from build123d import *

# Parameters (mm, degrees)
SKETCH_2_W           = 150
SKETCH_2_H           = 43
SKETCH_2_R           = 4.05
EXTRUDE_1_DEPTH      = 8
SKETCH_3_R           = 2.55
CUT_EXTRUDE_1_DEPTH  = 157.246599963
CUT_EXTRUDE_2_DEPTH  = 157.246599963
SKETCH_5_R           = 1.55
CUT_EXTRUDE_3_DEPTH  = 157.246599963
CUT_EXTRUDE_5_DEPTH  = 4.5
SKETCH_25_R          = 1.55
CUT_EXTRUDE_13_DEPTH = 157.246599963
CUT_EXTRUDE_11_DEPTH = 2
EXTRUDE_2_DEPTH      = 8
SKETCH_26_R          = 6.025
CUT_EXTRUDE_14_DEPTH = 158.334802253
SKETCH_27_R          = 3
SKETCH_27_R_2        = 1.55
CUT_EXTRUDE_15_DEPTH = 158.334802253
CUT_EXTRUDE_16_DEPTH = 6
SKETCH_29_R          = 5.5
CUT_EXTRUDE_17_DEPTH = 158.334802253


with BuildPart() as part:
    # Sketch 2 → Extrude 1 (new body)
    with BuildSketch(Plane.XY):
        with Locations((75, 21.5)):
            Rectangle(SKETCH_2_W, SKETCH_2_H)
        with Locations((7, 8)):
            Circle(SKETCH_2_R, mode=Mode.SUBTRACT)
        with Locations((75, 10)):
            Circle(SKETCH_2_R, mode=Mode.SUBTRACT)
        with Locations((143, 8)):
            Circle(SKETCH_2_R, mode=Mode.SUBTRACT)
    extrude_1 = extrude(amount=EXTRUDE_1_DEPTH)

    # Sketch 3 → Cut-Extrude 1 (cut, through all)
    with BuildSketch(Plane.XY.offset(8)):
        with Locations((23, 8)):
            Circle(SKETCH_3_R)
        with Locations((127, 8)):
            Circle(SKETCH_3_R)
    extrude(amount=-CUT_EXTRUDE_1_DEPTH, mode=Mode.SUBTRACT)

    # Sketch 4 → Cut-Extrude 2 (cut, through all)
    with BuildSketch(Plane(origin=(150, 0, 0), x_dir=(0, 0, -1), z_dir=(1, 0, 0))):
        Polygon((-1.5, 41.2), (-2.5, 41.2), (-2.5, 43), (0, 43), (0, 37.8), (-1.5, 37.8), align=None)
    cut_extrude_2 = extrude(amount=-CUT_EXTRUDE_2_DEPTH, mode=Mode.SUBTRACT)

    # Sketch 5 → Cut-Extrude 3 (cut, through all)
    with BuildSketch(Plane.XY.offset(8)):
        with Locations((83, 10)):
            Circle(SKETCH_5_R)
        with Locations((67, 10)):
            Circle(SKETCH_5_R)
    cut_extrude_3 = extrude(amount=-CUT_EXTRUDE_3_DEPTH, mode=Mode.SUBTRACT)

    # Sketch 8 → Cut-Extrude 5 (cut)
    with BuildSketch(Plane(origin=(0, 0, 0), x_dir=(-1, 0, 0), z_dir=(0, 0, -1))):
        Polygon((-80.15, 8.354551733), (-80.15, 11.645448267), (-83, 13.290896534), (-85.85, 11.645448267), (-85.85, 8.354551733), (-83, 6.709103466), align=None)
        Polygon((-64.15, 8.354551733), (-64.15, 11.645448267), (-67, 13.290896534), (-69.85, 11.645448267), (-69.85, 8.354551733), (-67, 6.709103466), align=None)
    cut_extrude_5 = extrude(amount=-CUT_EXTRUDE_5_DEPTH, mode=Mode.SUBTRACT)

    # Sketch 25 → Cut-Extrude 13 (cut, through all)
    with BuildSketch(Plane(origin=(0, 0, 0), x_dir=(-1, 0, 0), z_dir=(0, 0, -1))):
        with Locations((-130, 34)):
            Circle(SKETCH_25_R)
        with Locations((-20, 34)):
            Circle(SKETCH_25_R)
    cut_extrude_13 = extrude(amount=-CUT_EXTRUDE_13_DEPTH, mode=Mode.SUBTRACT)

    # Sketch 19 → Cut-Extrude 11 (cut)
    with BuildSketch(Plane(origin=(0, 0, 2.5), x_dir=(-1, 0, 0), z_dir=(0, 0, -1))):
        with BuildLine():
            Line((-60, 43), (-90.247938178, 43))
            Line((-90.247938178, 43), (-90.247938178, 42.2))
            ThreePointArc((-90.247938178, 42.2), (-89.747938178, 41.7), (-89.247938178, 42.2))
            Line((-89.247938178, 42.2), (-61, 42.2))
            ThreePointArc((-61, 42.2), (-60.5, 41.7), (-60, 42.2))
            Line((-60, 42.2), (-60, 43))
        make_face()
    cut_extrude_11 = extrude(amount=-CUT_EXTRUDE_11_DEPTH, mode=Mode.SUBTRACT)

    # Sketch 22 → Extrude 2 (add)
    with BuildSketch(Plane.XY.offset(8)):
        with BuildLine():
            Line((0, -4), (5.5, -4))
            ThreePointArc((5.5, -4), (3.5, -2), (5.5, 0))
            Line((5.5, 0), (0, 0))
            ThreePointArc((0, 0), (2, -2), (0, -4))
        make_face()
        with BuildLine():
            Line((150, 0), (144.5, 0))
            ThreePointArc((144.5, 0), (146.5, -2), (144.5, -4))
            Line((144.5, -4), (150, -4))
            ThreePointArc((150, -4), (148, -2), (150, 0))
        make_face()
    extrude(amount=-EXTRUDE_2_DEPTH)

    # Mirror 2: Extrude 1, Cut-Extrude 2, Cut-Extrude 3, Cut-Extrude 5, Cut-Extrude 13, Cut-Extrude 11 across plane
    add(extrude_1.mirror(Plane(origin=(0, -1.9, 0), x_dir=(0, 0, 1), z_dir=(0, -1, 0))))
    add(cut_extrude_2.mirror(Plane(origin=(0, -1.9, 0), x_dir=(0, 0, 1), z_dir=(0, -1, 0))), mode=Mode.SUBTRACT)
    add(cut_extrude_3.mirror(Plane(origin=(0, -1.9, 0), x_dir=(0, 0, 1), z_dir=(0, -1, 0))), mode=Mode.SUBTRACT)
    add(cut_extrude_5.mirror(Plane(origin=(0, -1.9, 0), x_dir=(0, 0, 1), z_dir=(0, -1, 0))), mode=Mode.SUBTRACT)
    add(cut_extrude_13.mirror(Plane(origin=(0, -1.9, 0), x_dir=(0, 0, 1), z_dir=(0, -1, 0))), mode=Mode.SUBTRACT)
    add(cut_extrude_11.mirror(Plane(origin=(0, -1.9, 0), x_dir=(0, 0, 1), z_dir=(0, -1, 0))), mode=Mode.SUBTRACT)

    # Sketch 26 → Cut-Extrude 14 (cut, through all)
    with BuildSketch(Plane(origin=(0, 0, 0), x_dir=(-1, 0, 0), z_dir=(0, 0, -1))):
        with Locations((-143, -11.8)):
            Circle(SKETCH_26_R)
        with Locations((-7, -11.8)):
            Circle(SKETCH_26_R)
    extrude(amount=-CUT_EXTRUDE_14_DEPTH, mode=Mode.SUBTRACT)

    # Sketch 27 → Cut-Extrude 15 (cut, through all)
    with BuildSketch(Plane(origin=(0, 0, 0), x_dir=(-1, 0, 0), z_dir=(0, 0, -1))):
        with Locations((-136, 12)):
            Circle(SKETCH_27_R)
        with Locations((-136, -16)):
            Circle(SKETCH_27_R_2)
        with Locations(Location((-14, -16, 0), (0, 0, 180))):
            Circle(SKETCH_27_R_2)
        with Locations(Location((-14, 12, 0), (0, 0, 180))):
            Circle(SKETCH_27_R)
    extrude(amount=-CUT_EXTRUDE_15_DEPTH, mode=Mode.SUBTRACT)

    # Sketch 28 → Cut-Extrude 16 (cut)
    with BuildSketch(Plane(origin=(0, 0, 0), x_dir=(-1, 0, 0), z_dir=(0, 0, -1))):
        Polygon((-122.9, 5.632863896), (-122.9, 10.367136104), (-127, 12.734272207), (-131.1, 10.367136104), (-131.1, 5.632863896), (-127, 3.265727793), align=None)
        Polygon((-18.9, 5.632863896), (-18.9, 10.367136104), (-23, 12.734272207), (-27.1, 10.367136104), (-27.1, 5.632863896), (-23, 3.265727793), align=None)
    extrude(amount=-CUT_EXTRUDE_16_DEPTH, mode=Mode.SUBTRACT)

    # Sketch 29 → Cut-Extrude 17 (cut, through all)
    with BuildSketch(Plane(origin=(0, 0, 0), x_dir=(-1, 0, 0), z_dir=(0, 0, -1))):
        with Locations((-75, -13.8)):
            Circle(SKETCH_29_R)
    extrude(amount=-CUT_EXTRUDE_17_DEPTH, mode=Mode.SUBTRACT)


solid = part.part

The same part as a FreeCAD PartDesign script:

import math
import FreeCAD as App
import Part
import Sketcher
Q = App.Units.Quantity


def add_polygon(sketch, points):
    """Adds a closed chain of lines whose ends are joined by coincident constraints."""
    first, n = sketch.GeometryCount, len(points)
    for a, b in zip(points, points[1:] + points[:1]):
        sketch.addGeometry(Part.LineSegment(App.Vector(*a, 0), App.Vector(*b, 0)), False)
    for i in range(n):
        sketch.addConstraint(Sketcher.Constraint("Coincident", first + i, 2, first + (i + 1) % n, 1))

doc = App.newDocument("Part")
body = doc.addObject("PartDesign::Body", "Body")

# Sketch on XY plane
sketch1 = doc.addObject("Sketcher::SketchObject", "Sketch")
body.addObject(sketch1)
sketch1.AttachmentSupport = (doc.XY_Plane, [""])
sketch1.MapMode = "FlatFace"
add_polygon(sketch1, [(0, 43), (0, 0), (150, 0), (150, 43)])  # lines 0-3
sketch1.addGeometry(Part.Circle(App.Vector(7, 8, 0), App.Vector(0, 0, 1), 4), False)  # 4
sketch1.addGeometry(Part.Circle(App.Vector(143, 8, 0), App.Vector(0, 0, 1), 4), False)  # 5
sketch1.addGeometry(Part.Circle(App.Vector(75, 10, 0), App.Vector(0, 0, 1), 4), False)  # 6
sketch1.addConstraint(Sketcher.Constraint("Vertical", 0))
sketch1.addConstraint(Sketcher.Constraint("Horizontal", 1))
sketch1.addConstraint(Sketcher.Constraint("Vertical", 2))
sketch1.addConstraint(Sketcher.Constraint("Horizontal", 3))
sketch1.addConstraint(Sketcher.Constraint("Coincident", 0, 2, -1, 1))
sketch1.addConstraint(Sketcher.Constraint("Equal", 4, 5))
sketch1.addConstraint(Sketcher.Constraint("Equal", 5, 6))
sketch1.addConstraint(Sketcher.Constraint("Horizontal", 4, 3, 5, 3))
sketch1.addConstraint(Sketcher.Constraint("Diameter", 4, Q("8.1 mm")))
sketch1.addConstraint(Sketcher.Constraint("DistanceX", 1, 1, 1, 2, Q("150 mm")))
sketch1.addConstraint(Sketcher.Constraint("DistanceY", 0, 2, 0, 1, Q("43 mm")))
sketch1.addConstraint(Sketcher.Constraint("DistanceX", -1, 1, 4, 3, Q("7 mm")))
sketch1.addConstraint(Sketcher.Constraint("DistanceY", -1, 1, 4, 3, Q("8 mm")))
sketch1.addConstraint(Sketcher.Constraint("DistanceX", -1, 1, 5, 3, Q("143 mm")))
sketch1.addConstraint(Sketcher.Constraint("DistanceX", -1, 1, 6, 3, Q("75 mm")))
sketch1.addConstraint(Sketcher.Constraint("DistanceY", -1, 1, 6, 3, Q("10 mm")))
pad1 = doc.addObject("PartDesign::Pad", "Pad")
body.addObject(pad1)
pad1.Profile = sketch1
pad1.Length = 8

# Sketch on XY plane
sketch2 = doc.addObject("Sketcher::SketchObject", "Sketch001")
body.addObject(sketch2)
sketch2.AttachmentSupport = (doc.XY_Plane, [""])
sketch2.MapMode = "FlatFace"
sketch2.AttachmentOffset = App.Placement(App.Vector(0, 0, 8), App.Rotation())
sketch2.addGeometry(Part.Circle(App.Vector(23, 8, 0), App.Vector(0, 0, 1), 2.5), False)
sketch2.addGeometry(Part.Circle(App.Vector(127, 8, 0), App.Vector(0, 0, 1), 2.5), False)
sketch2.addConstraint(Sketcher.Constraint("Equal", 0, 1))
sketch2.addConstraint(Sketcher.Constraint("Horizontal", 0, 3, 1, 3))
sketch2.addConstraint(Sketcher.Constraint("Diameter", 0, Q("5.1 mm")))
sketch2.addConstraint(Sketcher.Constraint("DistanceX", -1, 1, 0, 3, Q("23 mm")))
sketch2.addConstraint(Sketcher.Constraint("DistanceY", -1, 1, 0, 3, Q("8 mm")))
sketch2.addConstraint(Sketcher.Constraint("DistanceX", -1, 1, 1, 3, Q("127 mm")))
pocket1 = doc.addObject("PartDesign::Pocket", "Pocket")
body.addObject(pocket1)
pocket1.Profile = sketch2
pocket1.Type = "ThroughAll"

# Sketch on YZ plane
sketch3 = doc.addObject("Sketcher::SketchObject", "Sketch002")
body.addObject(sketch3)
sketch3.AttachmentSupport = (doc.YZ_Plane, [""])
sketch3.MapMode = "FlatFace"
sketch3.AttachmentOffset = App.Placement(App.Vector(0, 0, 150), App.Rotation())
add_polygon(sketch3, [(41.2, 2.5), (41.2, 1.5), (37.8, 1.5), (37.8, 0), (43, 0), (43, 2.5)])  # lines 0-5
sketch3.addConstraint(Sketcher.Constraint("Vertical", 0))
sketch3.addConstraint(Sketcher.Constraint("Horizontal", 1))
sketch3.addConstraint(Sketcher.Constraint("Vertical", 2))
sketch3.addConstraint(Sketcher.Constraint("Horizontal", 3))
sketch3.addConstraint(Sketcher.Constraint("Vertical", 4))
sketch3.addConstraint(Sketcher.Constraint("Horizontal", 5))
sketch3.addConstraint(Sketcher.Constraint("PointOnObject", 2, 2, -1))
sketch3.addConstraint(Sketcher.Constraint("DistanceY", 0, 2, 0, 1, Q("1 mm")))
sketch3.addConstraint(Sketcher.Constraint("DistanceX", 1, 2, 1, 1, Q("3.4 mm")))
sketch3.addConstraint(Sketcher.Constraint("DistanceX", 3, 1, 3, 2, Q("5.2 mm")))
sketch3.addConstraint(Sketcher.Constraint("DistanceY", 2, 2, 2, 1, Q("1.5 mm")))
sketch3.addConstraint(Sketcher.Constraint("DistanceX", -1, 1, 3, 2, Q("43 mm")))
pocket2 = doc.addObject("PartDesign::Pocket", "Pocket001")
body.addObject(pocket2)
pocket2.Profile = sketch3
pocket2.Type = "ThroughAll"

# Sketch on XY plane
sketch4 = doc.addObject("Sketcher::SketchObject", "Sketch003")
body.addObject(sketch4)
sketch4.AttachmentSupport = (doc.XY_Plane, [""])
sketch4.MapMode = "FlatFace"
sketch4.AttachmentOffset = App.Placement(App.Vector(0, 0, 8), App.Rotation())
sketch4.addGeometry(Part.Circle(App.Vector(83, 10, 0), App.Vector(0, 0, 1), 1.6), False)
sketch4.addGeometry(Part.Circle(App.Vector(67, 10, 0), App.Vector(0, 0, 1), 1.6), False)
sketch4.addConstraint(Sketcher.Constraint("Equal", 0, 1))
sketch4.addConstraint(Sketcher.Constraint("Horizontal", 0, 3, 1, 3))
sketch4.addConstraint(Sketcher.Constraint("Diameter", 0, Q("3.1 mm")))
sketch4.addConstraint(Sketcher.Constraint("DistanceX", -1, 1, 0, 3, Q("83 mm")))
sketch4.addConstraint(Sketcher.Constraint("DistanceY", -1, 1, 0, 3, Q("10 mm")))
sketch4.addConstraint(Sketcher.Constraint("DistanceX", -1, 1, 1, 3, Q("67 mm")))
pocket3 = doc.addObject("PartDesign::Pocket", "Pocket002")
body.addObject(pocket3)
pocket3.Profile = sketch4
pocket3.Type = "ThroughAll"

# Sketch on XY plane
sketch5 = doc.addObject("Sketcher::SketchObject", "Sketch004")
body.addObject(sketch5)
sketch5.AttachmentSupport = (doc.XY_Plane, [""])
sketch5.MapMode = "FlatFace"
add_polygon(sketch5, [(80.2, 8.4), (80.2, 11.6), (83, 13.3), (85.8, 11.6), (85.8, 8.4), (83, 6.7)])  # lines 0-5
add_polygon(sketch5, [(64.2, 8.4), (64.2, 11.6), (67, 13.3), (69.8, 11.6), (69.8, 8.4), (67, 6.7)])  # lines 6-11
sketch5.addConstraint(Sketcher.Constraint("Vertical", 0))
sketch5.addConstraint(Sketcher.Constraint("Vertical", 3))
sketch5.addConstraint(Sketcher.Constraint("Vertical", 6))
sketch5.addConstraint(Sketcher.Constraint("Vertical", 9))
sketch5.addConstraint(Sketcher.Constraint("Parallel", 1, 4))
sketch5.addConstraint(Sketcher.Constraint("Parallel", 2, 5))
sketch5.addConstraint(Sketcher.Constraint("Parallel", 4, 7))
sketch5.addConstraint(Sketcher.Constraint("Parallel", 5, 8))
sketch5.addConstraint(Sketcher.Constraint("Parallel", 7, 10))
sketch5.addConstraint(Sketcher.Constraint("Parallel", 8, 11))
sketch5.addConstraint(Sketcher.Constraint("Horizontal", 0, 2, 2, 2))
sketch5.addConstraint(Sketcher.Constraint("Horizontal", 3, 2, 5, 2))
sketch5.addConstraint(Sketcher.Constraint("Horizontal", 2, 2, 6, 2))
sketch5.addConstraint(Sketcher.Constraint("Horizontal", 1, 2, 7, 2))
sketch5.addConstraint(Sketcher.Constraint("Horizontal", 6, 2, 8, 2))
sketch5.addConstraint(Sketcher.Constraint("Horizontal", 5, 2, 9, 2))
sketch5.addConstraint(Sketcher.Constraint("Horizontal", 4, 2, 10, 2))
sketch5.addConstraint(Sketcher.Constraint("Vertical", 1, 2, 4, 2))
sketch5.addConstraint(Sketcher.Constraint("Angle", 1, Q("30 deg")))
sketch5.addConstraint(Sketcher.Constraint("DistanceX", -1, 1, 1, 2, Q("83 mm")))
sketch5.addConstraint(Sketcher.Constraint("DistanceX", -1, 1, 7, 2, Q("67 mm")))
sketch5.addConstraint(Sketcher.Constraint("DistanceX", 0, 2, 2, 2, Q("5.7 mm")))
sketch5.addConstraint(Sketcher.Constraint("DistanceY", 0, 1, 0, 2, Q("3.290897 mm")))
sketch5.addConstraint(Sketcher.Constraint("DistanceY", -1, 1, 0, 2, Q("11.645448 mm")))
pocket4 = doc.addObject("PartDesign::Pocket", "Pocket003")
body.addObject(pocket4)
pocket4.Profile = sketch5
pocket4.Length = 4.5
pocket4.Reversed = True

# Sketch on XY plane
sketch6 = doc.addObject("Sketcher::SketchObject", "Sketch005")
body.addObject(sketch6)
sketch6.AttachmentSupport = (doc.XY_Plane, [""])
sketch6.MapMode = "FlatFace"
sketch6.addGeometry(Part.Circle(App.Vector(130, 34, 0), App.Vector(0, 0, 1), 1.6), False)
sketch6.addGeometry(Part.Circle(App.Vector(20, 34, 0), App.Vector(0, 0, 1), 1.6), False)
sketch6.addConstraint(Sketcher.Constraint("Equal", 0, 1))
sketch6.addConstraint(Sketcher.Constraint("Horizontal", 0, 3, 1, 3))
sketch6.addConstraint(Sketcher.Constraint("Diameter", 0, Q("3.1 mm")))
sketch6.addConstraint(Sketcher.Constraint("DistanceX", -1, 1, 0, 3, Q("130 mm")))
sketch6.addConstraint(Sketcher.Constraint("DistanceY", -1, 1, 0, 3, Q("34 mm")))
sketch6.addConstraint(Sketcher.Constraint("DistanceX", -1, 1, 1, 3, Q("20 mm")))
pocket5 = doc.addObject("PartDesign::Pocket", "Pocket004")
body.addObject(pocket5)
pocket5.Profile = sketch6
pocket5.Type = "ThroughAll"
pocket5.Reversed = True

# Sketch on XY plane
sketch7 = doc.addObject("Sketcher::SketchObject", "Sketch006")
body.addObject(sketch7)
sketch7.AttachmentSupport = (doc.XY_Plane, [""])
sketch7.MapMode = "FlatFace"
sketch7.AttachmentOffset = App.Placement(App.Vector(0, 0, 2.5), App.Rotation())
sketch7.addGeometry(Part.LineSegment(App.Vector(60, 43, 0), App.Vector(90.2, 43, 0)), False)
sketch7.addGeometry(Part.LineSegment(App.Vector(90.2, 43, 0), App.Vector(90.2, 42.2, 0)), False)
sketch7.addGeometry(Part.ArcOfCircle(Part.Circle(App.Vector(89.7, 42.2, 0), App.Vector(0, 0, 1), 0.5), math.radians(180), math.radians(360)), False)
sketch7.addGeometry(Part.LineSegment(App.Vector(89.2, 42.2, 0), App.Vector(61, 42.2, 0)), False)
sketch7.addGeometry(Part.ArcOfCircle(Part.Circle(App.Vector(60.5, 42.2, 0), App.Vector(0, 0, 1), 0.5), math.radians(180), math.radians(360)), False)
sketch7.addGeometry(Part.LineSegment(App.Vector(60, 42.2, 0), App.Vector(60, 43, 0)), False)
sketch7.addConstraint(Sketcher.Constraint("Coincident", 0, 2, 1, 1))
sketch7.addConstraint(Sketcher.Constraint("Tangent", 1, 2, 2, 2))
sketch7.addConstraint(Sketcher.Constraint("Coincident", 2, 1, 3, 1))
sketch7.addConstraint(Sketcher.Constraint("Coincident", 3, 2, 4, 2))
sketch7.addConstraint(Sketcher.Constraint("Tangent", 4, 1, 5, 1))
sketch7.addConstraint(Sketcher.Constraint("Coincident", 5, 2, 0, 1))
sketch7.addConstraint(Sketcher.Constraint("Horizontal", 0))
sketch7.addConstraint(Sketcher.Constraint("Vertical", 1))
sketch7.addConstraint(Sketcher.Constraint("Horizontal", 3))
sketch7.addConstraint(Sketcher.Constraint("Vertical", 5))
sketch7.addConstraint(Sketcher.Constraint("Equal", 2, 4))
sketch7.addConstraint(Sketcher.Constraint("Horizontal", 2, 3, 4, 3))
sketch7.addConstraint(Sketcher.Constraint("Horizontal", 1, 2, 2, 1))
sketch7.addConstraint(Sketcher.Constraint("Radius", 2, Q("0.5 mm")))
sketch7.addConstraint(Sketcher.Constraint("DistanceY", 1, 2, 1, 1, Q("0.8 mm")))
sketch7.addConstraint(Sketcher.Constraint("DistanceY", -1, 1, 0, 2, Q("43 mm")))
sketch7.addConstraint(Sketcher.Constraint("DistanceX", -1, 1, 3, 2, Q("61 mm")))
sketch7.addConstraint(Sketcher.Constraint("DistanceX", 0, 1, 0, 2, Q("30.247938 mm")))
pocket6 = doc.addObject("PartDesign::Pocket", "Pocket005")
body.addObject(pocket6)
pocket6.Profile = sketch7
pocket6.Length = 2
pocket6.Reversed = True

# Sketch on XY plane
sketch8 = doc.addObject("Sketcher::SketchObject", "Sketch007")
body.addObject(sketch8)
sketch8.AttachmentSupport = (doc.XY_Plane, [""])
sketch8.MapMode = "FlatFace"
sketch8.AttachmentOffset = App.Placement(App.Vector(0, 0, 8), App.Rotation())
sketch8.addGeometry(Part.LineSegment(App.Vector(0, -4, 0), App.Vector(5.5, -4, 0)), False)
sketch8.addGeometry(Part.ArcOfCircle(Part.Circle(App.Vector(5.5, -2, 0), App.Vector(0, 0, 1), 2), math.radians(90), math.radians(270)), False)
sketch8.addGeometry(Part.LineSegment(App.Vector(5.5, 0, 0), App.Vector(0, 0, 0)), False)
sketch8.addGeometry(Part.ArcOfCircle(Part.Circle(App.Vector(0, -2, 0), App.Vector(0, 0, 1), 2), math.radians(-90), math.radians(90)), False)
sketch8.addGeometry(Part.LineSegment(App.Vector(150, 0, 0), App.Vector(144.5, 0, 0)), False)
sketch8.addGeometry(Part.ArcOfCircle(Part.Circle(App.Vector(144.5, -2, 0), App.Vector(0, 0, 1), 2), math.radians(-90), math.radians(90)), False)
sketch8.addGeometry(Part.LineSegment(App.Vector(144.5, -4, 0), App.Vector(150, -4, 0)), False)
sketch8.addGeometry(Part.ArcOfCircle(Part.Circle(App.Vector(150, -2, 0), App.Vector(0, 0, 1), 2), math.radians(90), math.radians(270)), False)
sketch8.addConstraint(Sketcher.Constraint("Tangent", 0, 2, 1, 2))
sketch8.addConstraint(Sketcher.Constraint("Tangent", 1, 1, 2, 1))
sketch8.addConstraint(Sketcher.Constraint("Tangent", 2, 2, 3, 2))
sketch8.addConstraint(Sketcher.Constraint("Tangent", 3, 1, 0, 1))
sketch8.addConstraint(Sketcher.Constraint("Tangent", 4, 2, 5, 2))
sketch8.addConstraint(Sketcher.Constraint("Tangent", 5, 1, 6, 1))
sketch8.addConstraint(Sketcher.Constraint("Tangent", 6, 2, 7, 2))
sketch8.addConstraint(Sketcher.Constraint("Tangent", 7, 1, 4, 1))
sketch8.addConstraint(Sketcher.Constraint("Horizontal", 0))
sketch8.addConstraint(Sketcher.Constraint("Horizontal", 2))
sketch8.addConstraint(Sketcher.Constraint("Horizontal", 4))
sketch8.addConstraint(Sketcher.Constraint("Horizontal", 6))
sketch8.addConstraint(Sketcher.Constraint("Coincident", 2, 2, -1, 1))
sketch8.addConstraint(Sketcher.Constraint("Equal", 3, 5))
sketch8.addConstraint(Sketcher.Constraint("PointOnObject", 4, 2, -1))
sketch8.addConstraint(Sketcher.Constraint("Equal", 2, 4))
sketch8.addConstraint(Sketcher.Constraint("Radius", 1, Q("2 mm")))
sketch8.addConstraint(Sketcher.Constraint("DistanceX", 0, 1, 0, 2, Q("5.5 mm")))
sketch8.addConstraint(Sketcher.Constraint("DistanceX", -1, 1, 7, 3, Q("150 mm")))
pad2 = doc.addObject("PartDesign::Pad", "Pad001")
body.addObject(pad2)
pad2.Profile = sketch8
pad2.Length = 8
pad2.Reversed = True
doc.recompute()

datumplane = doc.addObject("PartDesign::Plane", "DatumPlane")
body.addObject(datumplane)
datumplane.AttachmentSupport = (doc.XZ_Plane, [""])
datumplane.MapMode = "FlatFace"
datumplane.AttachmentOffset = App.Placement(App.Vector(0, 0, 1.9), App.Rotation())
mirrored = doc.addObject("PartDesign::Mirrored", "Mirrored")
body.addObject(mirrored)
mirrored.Originals = [pad1, pocket2, pocket3, pocket4, pocket5, pocket6]
mirrored.MirrorPlane = (datumplane, [""])
body.Tip = mirrored

# Sketch on XY plane
sketch9 = doc.addObject("Sketcher::SketchObject", "Sketch008")
body.addObject(sketch9)
sketch9.AttachmentSupport = (doc.XY_Plane, [""])
sketch9.MapMode = "FlatFace"
sketch9.addGeometry(Part.Circle(App.Vector(143, -12, 0), App.Vector(0, 0, 1), 6), False)
sketch9.addGeometry(Part.Circle(App.Vector(7, -12, 0), App.Vector(0, 0, 1), 6), False)
sketch9.addConstraint(Sketcher.Constraint("Equal", 0, 1))
sketch9.addConstraint(Sketcher.Constraint("Horizontal", 0, 3, 1, 3))
sketch9.addConstraint(Sketcher.Constraint("Diameter", 0, Q("12.05 mm")))
sketch9.addConstraint(Sketcher.Constraint("DistanceX", -1, 1, 0, 3, Q("143 mm")))
sketch9.addConstraint(Sketcher.Constraint("DistanceX", -1, 1, 1, 3, Q("7 mm")))
sketch9.addConstraint(Sketcher.Constraint("DistanceY", 0, 3, -1, 1, Q("11.8 mm")))
pocket7 = doc.addObject("PartDesign::Pocket", "Pocket006")
body.addObject(pocket7)
pocket7.Profile = sketch9
pocket7.Type = "ThroughAll"
pocket7.Reversed = True

# Sketch on XY plane
sketch10 = doc.addObject("Sketcher::SketchObject", "Sketch009")
body.addObject(sketch10)
sketch10.AttachmentSupport = (doc.XY_Plane, [""])
sketch10.MapMode = "FlatFace"
sketch10.addGeometry(Part.Circle(App.Vector(136, 12, 0), App.Vector(0, 0, 1), 3), False)
sketch10.addGeometry(Part.Circle(App.Vector(136, -16, 0), App.Vector(0, 0, 1), 1.6), False)
sketch10.addGeometry(Part.Circle(App.Vector(14, -16, 0), App.Vector(0, 0, 1), 1.6), False)
sketch10.addGeometry(Part.Circle(App.Vector(14, 12, 0), App.Vector(0, 0, 1), 3), False)
sketch10.addConstraint(Sketcher.Constraint("Equal", 1, 2))
sketch10.addConstraint(Sketcher.Constraint("Equal", 0, 3))
sketch10.addConstraint(Sketcher.Constraint("Horizontal", 1, 3, 2, 3))
sketch10.addConstraint(Sketcher.Constraint("Horizontal", 0, 3, 3, 3))
sketch10.addConstraint(Sketcher.Constraint("Vertical", 0, 3, 1, 3))
sketch10.addConstraint(Sketcher.Constraint("Vertical", 2, 3, 3, 3))
sketch10.addConstraint(Sketcher.Constraint("Diameter", 0, Q("6 mm")))
sketch10.addConstraint(Sketcher.Constraint("Diameter", 1, Q("3.1 mm")))
sketch10.addConstraint(Sketcher.Constraint("DistanceX", -1, 1, 0, 3, Q("136 mm")))
sketch10.addConstraint(Sketcher.Constraint("DistanceY", -1, 1, 0, 3, Q("12 mm")))
sketch10.addConstraint(Sketcher.Constraint("DistanceY", 1, 3, -1, 1, Q("16 mm")))
sketch10.addConstraint(Sketcher.Constraint("DistanceX", -1, 1, 2, 3, Q("14 mm")))
pocket8 = doc.addObject("PartDesign::Pocket", "Pocket007")
body.addObject(pocket8)
pocket8.Profile = sketch10
pocket8.Type = "ThroughAll"
pocket8.Reversed = True

# Sketch on XY plane
sketch11 = doc.addObject("Sketcher::SketchObject", "Sketch010")
body.addObject(sketch11)
sketch11.AttachmentSupport = (doc.XY_Plane, [""])
sketch11.MapMode = "FlatFace"
add_polygon(sketch11, [(122.9, 5.6), (122.9, 10.4), (127, 12.7), (131.1, 10.4), (131.1, 5.6), (127, 3.3)])  # lines 0-5
add_polygon(sketch11, [(18.9, 5.6), (18.9, 10.4), (23, 12.7), (27.1, 10.4), (27.1, 5.6), (23, 3.3)])  # lines 6-11
sketch11.addConstraint(Sketcher.Constraint("Vertical", 0))
sketch11.addConstraint(Sketcher.Constraint("Vertical", 3))
sketch11.addConstraint(Sketcher.Constraint("Vertical", 6))
sketch11.addConstraint(Sketcher.Constraint("Vertical", 9))
sketch11.addConstraint(Sketcher.Constraint("Parallel", 1, 4))
sketch11.addConstraint(Sketcher.Constraint("Parallel", 2, 5))
sketch11.addConstraint(Sketcher.Constraint("Parallel", 4, 7))
sketch11.addConstraint(Sketcher.Constraint("Parallel", 5, 8))
sketch11.addConstraint(Sketcher.Constraint("Parallel", 7, 10))
sketch11.addConstraint(Sketcher.Constraint("Parallel", 8, 11))
sketch11.addConstraint(Sketcher.Constraint("Horizontal", 0, 2, 2, 2))
sketch11.addConstraint(Sketcher.Constraint("Horizontal", 3, 2, 5, 2))
sketch11.addConstraint(Sketcher.Constraint("Horizontal", 2, 2, 6, 2))
sketch11.addConstraint(Sketcher.Constraint("Horizontal", 1, 2, 7, 2))
sketch11.addConstraint(Sketcher.Constraint("Horizontal", 6, 2, 8, 2))
sketch11.addConstraint(Sketcher.Constraint("Horizontal", 5, 2, 9, 2))
sketch11.addConstraint(Sketcher.Constraint("Horizontal", 4, 2, 10, 2))
sketch11.addConstraint(Sketcher.Constraint("Vertical", 1, 2, 4, 2))
sketch11.addConstraint(Sketcher.Constraint("Angle", 1, Q("30 deg")))
sketch11.addConstraint(Sketcher.Constraint("DistanceX", -1, 1, 1, 2, Q("127 mm")))
sketch11.addConstraint(Sketcher.Constraint("DistanceX", -1, 1, 7, 2, Q("23 mm")))
sketch11.addConstraint(Sketcher.Constraint("DistanceX", -1, 1, 0, 2, Q("122.9 mm")))
sketch11.addConstraint(Sketcher.Constraint("DistanceY", 0, 1, 0, 2, Q("4.734272 mm")))
sketch11.addConstraint(Sketcher.Constraint("DistanceY", -1, 1, 0, 2, Q("10.367136 mm")))
pocket9 = doc.addObject("PartDesign::Pocket", "Pocket008")
body.addObject(pocket9)
pocket9.Profile = sketch11
pocket9.Length = 6
pocket9.Reversed = True

# Sketch on XY plane
sketch12 = doc.addObject("Sketcher::SketchObject", "Sketch011")
body.addObject(sketch12)
sketch12.AttachmentSupport = (doc.XY_Plane, [""])
sketch12.MapMode = "FlatFace"
sketch12.addGeometry(Part.Circle(App.Vector(75, -14, 0), App.Vector(0, 0, 1), 6), False)
sketch12.addConstraint(Sketcher.Constraint("Diameter", 0, Q("11 mm")))
sketch12.addConstraint(Sketcher.Constraint("DistanceX", -1, 1, 0, 3, Q("75 mm")))
sketch12.addConstraint(Sketcher.Constraint("DistanceY", 0, 3, -1, 1, Q("13.8 mm")))
pocket10 = doc.addObject("PartDesign::Pocket", "Pocket009")
body.addObject(pocket10)
pocket10.Profile = sketch12
pocket10.Type = "ThroughAll"
pocket10.Reversed = True

doc.recompute()
